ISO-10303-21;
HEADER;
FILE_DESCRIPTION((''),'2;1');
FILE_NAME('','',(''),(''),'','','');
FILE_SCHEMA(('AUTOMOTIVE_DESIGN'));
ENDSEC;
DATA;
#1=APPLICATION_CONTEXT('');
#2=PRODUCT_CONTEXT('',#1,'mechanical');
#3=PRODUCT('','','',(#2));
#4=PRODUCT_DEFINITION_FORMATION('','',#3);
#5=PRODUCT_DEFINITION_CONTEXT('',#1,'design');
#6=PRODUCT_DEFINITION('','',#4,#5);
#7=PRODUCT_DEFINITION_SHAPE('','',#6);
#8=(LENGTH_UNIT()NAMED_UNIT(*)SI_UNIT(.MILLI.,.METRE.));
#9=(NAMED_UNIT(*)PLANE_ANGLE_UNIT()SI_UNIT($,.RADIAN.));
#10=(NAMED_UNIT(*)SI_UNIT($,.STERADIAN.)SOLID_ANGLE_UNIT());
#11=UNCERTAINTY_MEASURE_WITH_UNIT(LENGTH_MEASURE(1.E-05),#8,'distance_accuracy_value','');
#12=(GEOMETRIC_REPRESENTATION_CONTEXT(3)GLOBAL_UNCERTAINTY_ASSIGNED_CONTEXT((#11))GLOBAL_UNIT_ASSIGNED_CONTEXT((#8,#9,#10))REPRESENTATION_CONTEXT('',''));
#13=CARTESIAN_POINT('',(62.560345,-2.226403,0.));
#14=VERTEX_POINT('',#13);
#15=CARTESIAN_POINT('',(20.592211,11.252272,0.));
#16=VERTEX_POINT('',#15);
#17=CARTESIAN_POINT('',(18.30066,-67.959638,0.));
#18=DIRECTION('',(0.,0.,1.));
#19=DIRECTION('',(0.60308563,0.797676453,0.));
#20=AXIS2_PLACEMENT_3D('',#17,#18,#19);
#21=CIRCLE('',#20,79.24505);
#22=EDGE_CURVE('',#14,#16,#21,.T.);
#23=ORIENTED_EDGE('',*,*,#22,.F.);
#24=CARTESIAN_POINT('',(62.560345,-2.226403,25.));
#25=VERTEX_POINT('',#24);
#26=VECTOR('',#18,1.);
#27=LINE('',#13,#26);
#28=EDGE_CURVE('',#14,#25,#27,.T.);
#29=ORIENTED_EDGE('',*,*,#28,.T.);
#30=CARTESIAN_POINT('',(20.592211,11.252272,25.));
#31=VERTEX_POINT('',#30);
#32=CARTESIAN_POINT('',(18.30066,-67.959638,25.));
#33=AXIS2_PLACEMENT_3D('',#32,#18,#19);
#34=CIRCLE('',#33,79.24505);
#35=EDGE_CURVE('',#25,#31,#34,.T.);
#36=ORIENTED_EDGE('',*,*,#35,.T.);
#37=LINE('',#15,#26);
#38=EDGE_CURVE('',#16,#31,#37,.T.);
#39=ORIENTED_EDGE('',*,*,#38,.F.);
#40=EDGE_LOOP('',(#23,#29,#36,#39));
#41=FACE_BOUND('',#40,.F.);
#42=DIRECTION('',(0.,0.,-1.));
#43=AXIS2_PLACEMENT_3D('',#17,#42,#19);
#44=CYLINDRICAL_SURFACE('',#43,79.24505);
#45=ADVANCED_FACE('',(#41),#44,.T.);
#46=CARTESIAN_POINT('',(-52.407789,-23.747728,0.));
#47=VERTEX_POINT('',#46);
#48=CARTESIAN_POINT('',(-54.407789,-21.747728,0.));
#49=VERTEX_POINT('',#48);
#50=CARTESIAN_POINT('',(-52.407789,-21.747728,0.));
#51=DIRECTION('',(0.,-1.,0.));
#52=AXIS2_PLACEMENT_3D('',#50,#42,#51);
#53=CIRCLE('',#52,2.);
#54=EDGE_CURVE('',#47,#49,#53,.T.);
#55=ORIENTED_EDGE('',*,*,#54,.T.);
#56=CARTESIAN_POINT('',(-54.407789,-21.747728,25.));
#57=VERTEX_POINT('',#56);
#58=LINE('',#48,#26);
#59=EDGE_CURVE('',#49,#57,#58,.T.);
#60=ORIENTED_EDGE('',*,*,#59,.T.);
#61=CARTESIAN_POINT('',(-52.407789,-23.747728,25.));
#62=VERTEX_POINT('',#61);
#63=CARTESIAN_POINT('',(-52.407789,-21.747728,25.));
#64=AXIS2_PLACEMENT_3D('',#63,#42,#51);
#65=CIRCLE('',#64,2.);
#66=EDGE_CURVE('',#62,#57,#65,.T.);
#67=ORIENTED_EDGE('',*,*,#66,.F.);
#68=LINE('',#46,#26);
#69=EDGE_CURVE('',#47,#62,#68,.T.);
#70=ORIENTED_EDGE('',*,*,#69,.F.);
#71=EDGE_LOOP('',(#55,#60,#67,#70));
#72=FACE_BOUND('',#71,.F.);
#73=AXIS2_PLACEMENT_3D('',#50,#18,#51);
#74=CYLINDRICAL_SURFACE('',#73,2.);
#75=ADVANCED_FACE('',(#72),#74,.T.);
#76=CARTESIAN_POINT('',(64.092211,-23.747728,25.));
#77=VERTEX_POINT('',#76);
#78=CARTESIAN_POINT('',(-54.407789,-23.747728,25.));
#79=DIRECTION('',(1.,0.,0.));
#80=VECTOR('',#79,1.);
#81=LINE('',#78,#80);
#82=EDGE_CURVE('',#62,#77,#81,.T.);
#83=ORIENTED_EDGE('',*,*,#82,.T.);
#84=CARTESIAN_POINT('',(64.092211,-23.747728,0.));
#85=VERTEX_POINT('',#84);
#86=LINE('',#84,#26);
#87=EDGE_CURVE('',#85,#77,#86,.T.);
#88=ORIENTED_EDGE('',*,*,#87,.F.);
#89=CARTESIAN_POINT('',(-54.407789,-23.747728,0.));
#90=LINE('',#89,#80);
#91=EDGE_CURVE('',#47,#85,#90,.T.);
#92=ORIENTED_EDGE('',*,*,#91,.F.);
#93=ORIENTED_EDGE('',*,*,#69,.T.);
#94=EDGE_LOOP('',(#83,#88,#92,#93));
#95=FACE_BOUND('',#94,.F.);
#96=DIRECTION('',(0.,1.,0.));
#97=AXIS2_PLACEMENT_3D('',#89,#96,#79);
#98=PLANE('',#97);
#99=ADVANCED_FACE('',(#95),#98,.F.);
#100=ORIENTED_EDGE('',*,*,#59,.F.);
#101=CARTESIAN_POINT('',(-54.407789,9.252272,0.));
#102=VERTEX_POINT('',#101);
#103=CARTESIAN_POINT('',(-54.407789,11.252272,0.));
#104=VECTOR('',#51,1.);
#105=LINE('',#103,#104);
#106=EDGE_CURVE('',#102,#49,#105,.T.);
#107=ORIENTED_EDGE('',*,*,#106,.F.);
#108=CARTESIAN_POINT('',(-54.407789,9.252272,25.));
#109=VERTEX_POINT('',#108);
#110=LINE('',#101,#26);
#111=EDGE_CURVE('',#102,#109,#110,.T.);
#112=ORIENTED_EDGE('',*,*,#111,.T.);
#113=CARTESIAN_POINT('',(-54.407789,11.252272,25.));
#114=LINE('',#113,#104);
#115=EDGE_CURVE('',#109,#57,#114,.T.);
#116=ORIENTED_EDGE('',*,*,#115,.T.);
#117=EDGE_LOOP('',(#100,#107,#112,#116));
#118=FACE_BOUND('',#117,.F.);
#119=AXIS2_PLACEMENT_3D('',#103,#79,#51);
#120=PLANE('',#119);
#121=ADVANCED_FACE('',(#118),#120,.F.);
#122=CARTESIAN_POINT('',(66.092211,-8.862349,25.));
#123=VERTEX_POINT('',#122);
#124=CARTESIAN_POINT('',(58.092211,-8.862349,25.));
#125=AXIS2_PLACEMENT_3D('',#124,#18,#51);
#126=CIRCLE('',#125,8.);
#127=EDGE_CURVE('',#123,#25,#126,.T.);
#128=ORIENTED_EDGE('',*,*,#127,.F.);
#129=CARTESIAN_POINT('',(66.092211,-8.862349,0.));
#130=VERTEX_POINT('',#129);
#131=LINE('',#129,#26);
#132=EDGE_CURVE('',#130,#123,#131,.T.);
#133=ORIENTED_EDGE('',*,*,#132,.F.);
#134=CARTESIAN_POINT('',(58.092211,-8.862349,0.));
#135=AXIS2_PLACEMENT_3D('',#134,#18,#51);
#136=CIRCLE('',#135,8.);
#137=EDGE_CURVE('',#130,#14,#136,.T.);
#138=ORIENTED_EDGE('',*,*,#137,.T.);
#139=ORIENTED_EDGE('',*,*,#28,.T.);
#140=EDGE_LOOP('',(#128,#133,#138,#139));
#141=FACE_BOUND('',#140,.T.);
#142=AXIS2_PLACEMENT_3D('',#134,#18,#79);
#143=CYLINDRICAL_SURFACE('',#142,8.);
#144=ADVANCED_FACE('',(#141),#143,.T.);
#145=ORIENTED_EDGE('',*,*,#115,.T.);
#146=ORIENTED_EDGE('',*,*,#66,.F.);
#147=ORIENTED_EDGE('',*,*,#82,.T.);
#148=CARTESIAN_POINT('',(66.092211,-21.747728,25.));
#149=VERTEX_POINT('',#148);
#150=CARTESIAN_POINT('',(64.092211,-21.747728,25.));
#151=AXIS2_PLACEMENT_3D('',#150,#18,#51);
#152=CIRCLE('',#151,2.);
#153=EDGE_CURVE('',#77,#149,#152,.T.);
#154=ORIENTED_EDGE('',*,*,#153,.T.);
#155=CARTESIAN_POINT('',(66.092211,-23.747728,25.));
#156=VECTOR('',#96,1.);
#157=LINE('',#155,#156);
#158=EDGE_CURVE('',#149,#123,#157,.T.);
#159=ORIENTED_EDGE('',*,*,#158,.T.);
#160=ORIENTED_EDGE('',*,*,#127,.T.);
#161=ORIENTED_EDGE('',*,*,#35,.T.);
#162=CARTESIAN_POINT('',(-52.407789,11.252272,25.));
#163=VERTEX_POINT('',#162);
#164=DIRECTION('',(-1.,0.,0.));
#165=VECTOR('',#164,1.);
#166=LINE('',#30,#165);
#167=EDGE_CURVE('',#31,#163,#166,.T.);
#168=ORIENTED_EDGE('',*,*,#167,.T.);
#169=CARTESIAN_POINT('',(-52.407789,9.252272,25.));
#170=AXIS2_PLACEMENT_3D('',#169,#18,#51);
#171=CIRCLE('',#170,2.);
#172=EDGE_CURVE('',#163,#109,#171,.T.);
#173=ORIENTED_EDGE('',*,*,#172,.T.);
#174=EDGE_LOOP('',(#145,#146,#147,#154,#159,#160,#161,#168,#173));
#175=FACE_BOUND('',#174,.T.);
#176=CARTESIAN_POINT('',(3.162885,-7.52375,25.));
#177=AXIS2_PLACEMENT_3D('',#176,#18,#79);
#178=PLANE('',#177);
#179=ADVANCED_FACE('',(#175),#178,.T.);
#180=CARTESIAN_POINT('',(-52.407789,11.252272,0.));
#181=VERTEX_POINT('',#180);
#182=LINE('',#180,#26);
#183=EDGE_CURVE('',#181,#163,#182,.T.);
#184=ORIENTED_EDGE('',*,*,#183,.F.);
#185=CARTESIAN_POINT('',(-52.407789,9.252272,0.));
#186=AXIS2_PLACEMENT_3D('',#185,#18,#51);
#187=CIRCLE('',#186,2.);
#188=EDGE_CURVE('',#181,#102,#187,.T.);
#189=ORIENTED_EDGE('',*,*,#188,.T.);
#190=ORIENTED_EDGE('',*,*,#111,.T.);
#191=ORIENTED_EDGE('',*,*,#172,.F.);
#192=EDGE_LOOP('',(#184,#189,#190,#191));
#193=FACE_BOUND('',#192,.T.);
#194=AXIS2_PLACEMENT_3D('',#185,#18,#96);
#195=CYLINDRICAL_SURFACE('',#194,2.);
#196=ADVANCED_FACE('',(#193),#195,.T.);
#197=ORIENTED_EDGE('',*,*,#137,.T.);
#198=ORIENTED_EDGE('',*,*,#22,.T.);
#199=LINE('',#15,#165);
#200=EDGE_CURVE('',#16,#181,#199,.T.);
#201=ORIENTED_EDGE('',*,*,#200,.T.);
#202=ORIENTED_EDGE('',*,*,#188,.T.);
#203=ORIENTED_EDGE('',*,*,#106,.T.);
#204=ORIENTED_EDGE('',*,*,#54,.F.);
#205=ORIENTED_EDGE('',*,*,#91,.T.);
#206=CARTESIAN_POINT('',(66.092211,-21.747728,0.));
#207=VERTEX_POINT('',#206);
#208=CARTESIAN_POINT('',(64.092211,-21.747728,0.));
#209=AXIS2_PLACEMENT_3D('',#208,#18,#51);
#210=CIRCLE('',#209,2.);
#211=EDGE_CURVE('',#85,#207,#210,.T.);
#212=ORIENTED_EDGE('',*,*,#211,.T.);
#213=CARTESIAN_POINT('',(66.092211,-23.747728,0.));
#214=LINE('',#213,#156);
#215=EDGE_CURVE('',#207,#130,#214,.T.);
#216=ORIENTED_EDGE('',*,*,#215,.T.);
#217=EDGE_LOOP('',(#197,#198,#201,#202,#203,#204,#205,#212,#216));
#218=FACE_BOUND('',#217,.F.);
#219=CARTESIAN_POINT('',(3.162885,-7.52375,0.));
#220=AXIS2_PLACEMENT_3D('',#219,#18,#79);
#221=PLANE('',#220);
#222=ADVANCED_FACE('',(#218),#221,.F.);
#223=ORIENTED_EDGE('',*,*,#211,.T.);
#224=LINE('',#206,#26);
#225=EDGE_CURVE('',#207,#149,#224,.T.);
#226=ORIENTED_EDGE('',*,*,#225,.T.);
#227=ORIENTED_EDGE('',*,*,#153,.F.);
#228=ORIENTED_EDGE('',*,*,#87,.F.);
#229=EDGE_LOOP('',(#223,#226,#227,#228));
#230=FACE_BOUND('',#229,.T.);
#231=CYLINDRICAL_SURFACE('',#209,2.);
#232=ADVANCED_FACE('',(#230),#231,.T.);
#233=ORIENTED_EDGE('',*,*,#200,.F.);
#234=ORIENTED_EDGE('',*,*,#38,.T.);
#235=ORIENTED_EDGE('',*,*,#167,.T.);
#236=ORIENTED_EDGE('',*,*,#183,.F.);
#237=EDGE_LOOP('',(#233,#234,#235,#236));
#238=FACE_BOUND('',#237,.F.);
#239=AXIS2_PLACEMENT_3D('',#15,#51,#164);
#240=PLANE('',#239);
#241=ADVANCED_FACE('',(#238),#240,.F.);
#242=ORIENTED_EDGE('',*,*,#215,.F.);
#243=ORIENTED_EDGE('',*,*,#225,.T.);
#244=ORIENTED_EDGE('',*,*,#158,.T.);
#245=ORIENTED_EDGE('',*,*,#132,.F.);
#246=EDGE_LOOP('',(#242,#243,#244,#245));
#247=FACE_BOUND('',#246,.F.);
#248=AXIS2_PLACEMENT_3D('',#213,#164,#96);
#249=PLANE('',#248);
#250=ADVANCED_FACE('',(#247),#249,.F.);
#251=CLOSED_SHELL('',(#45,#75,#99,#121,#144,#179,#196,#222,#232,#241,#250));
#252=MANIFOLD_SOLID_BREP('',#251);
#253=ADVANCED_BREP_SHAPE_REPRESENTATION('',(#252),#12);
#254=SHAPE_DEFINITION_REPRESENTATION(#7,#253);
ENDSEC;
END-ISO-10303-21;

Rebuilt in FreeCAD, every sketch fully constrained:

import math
import FreeCAD as App
import Part
import Sketcher
Q = App.Units.Quantity


def edges_at(feature, points):
    """Names of the edges that pass closest to the given points."""
    edges = feature.Shape.Edges
    near = lambda p: min(range(len(edges)), key=lambda i: edges[i].distToShape(Part.Vertex(*p))[0])
    return sorted({f"Edge{near(p) + 1}" for p in points})

doc = App.newDocument("Part")
params = doc.addObject("Spreadsheet::Sheet", "Params")
for row, (alias, value) in enumerate([
    ("sketch1_width", "75 mm"),
    ("sketch1_height", "19 mm"),
    ("sketch1_height2", "35 mm"),
    ("sketch1_width2", "120.5 mm"),
    ("pad1_length", "25 mm"),
    ("fillet_radius", "2 mm"),
    ("fillet2_radius", "8 mm"),
], start=1):
    params.set(f"A{row}", alias)
    params.set(f"B{row}", "=" + value)
    params.setAlias(f"B{row}", alias)

body = doc.addObject("PartDesign::Body", "Body")

# Sketch on XY plane
sketch1 = body.newObject("Sketcher::SketchObject", "Sketch")
sketch1.AttachmentSupport = (doc.getObject("XY_Plane"), [""])
sketch1.MapMode = "FlatFace"
sketch1.addGeometry([
    Part.LineSegment(App.Vector(-54, -24, 0), App.Vector(66, -24, 0)),  # 0
    Part.LineSegment(App.Vector(66, -24, 0), App.Vector(66, -5, 0)),  # 1
    Part.ArcOfCircle(Part.Circle(App.Vector(18, -68, 0), App.Vector(0, 0, 1), 79), math.radians(53), math.radians(88)),  # 2
    Part.LineSegment(App.Vector(21, 11, 0), App.Vector(-54, 11, 0)),  # 3
    Part.LineSegment(App.Vector(-54, 11, 0), App.Vector(-54, -24, 0)),  # 4
], False)
sketch1.addConstraint([
    Sketcher.Constraint("Coincident", 0, 2, 1, 1),
    Sketcher.Constraint("Coincident", 1, 2, 2, 1),
    Sketcher.Constraint("Coincident", 2, 2, 3, 1),
    Sketcher.Constraint("Coincident", 3, 2, 4, 1),
    Sketcher.Constraint("Coincident", 4, 2, 0, 1),
    Sketcher.Constraint("Horizontal", 0),
    Sketcher.Constraint("Vertical", 1),
    Sketcher.Constraint("Horizontal", 3),
    Sketcher.Constraint("Vertical", 4),
    Sketcher.Constraint("DistanceX", 3, 2, 3, 1, Q("75 mm")),
    Sketcher.Constraint("DistanceY", 1, 1, 1, 2, Q("19 mm")),
    Sketcher.Constraint("DistanceY", 4, 2, 4, 1, Q("35 mm")),
    Sketcher.Constraint("DistanceX", 0, 1, 0, 2, Q("120.5 mm")),
    Sketcher.Constraint("Radius", 2, Q("79.24505 mm")),
    Sketcher.Constraint("DistanceX", -1, 1, 2, 3, Q("18.30066 mm")),
    Sketcher.Constraint("DistanceY", 2, 3, -1, 1, Q("67.959638 mm")),
])
sketch1.setExpression("Constraints[9]", "Params.sketch1_width")
sketch1.setExpression("Constraints[10]", "Params.sketch1_height")
sketch1.setExpression("Constraints[11]", "Params.sketch1_height2")
sketch1.setExpression("Constraints[12]", "Params.sketch1_width2")
pad1 = body.newObject("PartDesign::Pad", "Pad")
pad1.Profile = sketch1
pad1.setExpression("Length", "Params.pad1_length")
doc.recompute()

fillet = body.newObject("PartDesign::Fillet", "Fillet")
fillet.Base = (pad1, edges_at(pad1, [(-54.408, -23.748, 12.5), (66.092, -23.748, 12.5), (-54.408, 11.252, 12.5)]))
fillet.setExpression("Radius", "Params.fillet_radius")
doc.recompute()

fillet2 = body.newObject("PartDesign::Fillet", "Fillet001")
fillet2.Base = (fillet, edges_at(fillet, [(66.092, -4.748, 12.5)]))
fillet2.setExpression("Radius", "Params.fillet2_radius")

doc.recompute()
